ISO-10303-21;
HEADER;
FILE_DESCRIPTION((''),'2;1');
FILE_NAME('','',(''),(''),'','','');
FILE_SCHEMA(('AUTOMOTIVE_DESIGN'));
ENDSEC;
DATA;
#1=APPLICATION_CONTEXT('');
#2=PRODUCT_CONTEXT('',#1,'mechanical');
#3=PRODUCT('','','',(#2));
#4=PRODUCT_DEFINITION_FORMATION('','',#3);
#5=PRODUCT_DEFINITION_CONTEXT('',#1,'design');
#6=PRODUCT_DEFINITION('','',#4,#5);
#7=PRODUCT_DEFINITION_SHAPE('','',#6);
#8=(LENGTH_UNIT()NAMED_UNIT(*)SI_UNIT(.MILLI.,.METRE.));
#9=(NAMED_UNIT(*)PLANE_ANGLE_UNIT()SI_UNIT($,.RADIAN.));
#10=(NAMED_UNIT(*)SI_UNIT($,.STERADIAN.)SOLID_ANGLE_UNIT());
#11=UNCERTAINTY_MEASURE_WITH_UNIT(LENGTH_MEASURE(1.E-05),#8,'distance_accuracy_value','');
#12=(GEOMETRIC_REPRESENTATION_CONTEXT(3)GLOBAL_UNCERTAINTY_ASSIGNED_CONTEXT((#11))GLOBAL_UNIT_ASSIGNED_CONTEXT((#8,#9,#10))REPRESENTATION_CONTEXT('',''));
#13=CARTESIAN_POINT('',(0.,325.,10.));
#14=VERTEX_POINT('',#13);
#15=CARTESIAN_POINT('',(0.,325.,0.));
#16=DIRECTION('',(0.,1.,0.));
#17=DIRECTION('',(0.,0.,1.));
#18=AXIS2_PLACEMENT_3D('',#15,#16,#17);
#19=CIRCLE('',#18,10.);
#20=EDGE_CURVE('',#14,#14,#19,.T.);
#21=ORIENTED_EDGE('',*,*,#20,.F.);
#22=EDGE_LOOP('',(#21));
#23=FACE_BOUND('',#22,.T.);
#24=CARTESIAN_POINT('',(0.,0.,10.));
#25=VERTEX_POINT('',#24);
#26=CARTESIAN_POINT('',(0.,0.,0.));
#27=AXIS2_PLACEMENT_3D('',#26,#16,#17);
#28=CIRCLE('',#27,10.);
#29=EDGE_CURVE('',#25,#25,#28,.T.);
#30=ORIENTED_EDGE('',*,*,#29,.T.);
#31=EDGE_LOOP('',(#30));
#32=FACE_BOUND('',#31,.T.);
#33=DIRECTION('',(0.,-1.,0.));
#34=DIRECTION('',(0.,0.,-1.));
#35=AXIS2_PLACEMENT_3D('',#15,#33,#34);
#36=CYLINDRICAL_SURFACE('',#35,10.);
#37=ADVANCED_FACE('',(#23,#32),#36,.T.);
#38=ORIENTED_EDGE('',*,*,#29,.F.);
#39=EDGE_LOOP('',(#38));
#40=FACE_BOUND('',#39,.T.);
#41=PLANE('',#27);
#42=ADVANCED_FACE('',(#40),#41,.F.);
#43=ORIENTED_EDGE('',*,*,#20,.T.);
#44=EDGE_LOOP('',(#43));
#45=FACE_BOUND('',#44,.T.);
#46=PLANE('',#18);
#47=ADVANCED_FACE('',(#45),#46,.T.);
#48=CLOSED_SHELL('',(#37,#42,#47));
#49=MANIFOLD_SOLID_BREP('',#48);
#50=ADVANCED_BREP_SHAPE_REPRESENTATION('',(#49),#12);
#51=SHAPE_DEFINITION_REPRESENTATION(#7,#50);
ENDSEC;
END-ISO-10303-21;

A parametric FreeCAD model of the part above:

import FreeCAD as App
import Part
import Sketcher
from FreeCAD import Vector
Q = App.Units.Quantity

doc = App.newDocument("Part")
params = doc.addObject("Spreadsheet::Sheet", "Params")
for row, (alias, value) in enumerate([
    ("sketch1_diameter", "20 mm"),
    ("pad1_length", "325 mm"),
], start=1):
    params.set(f"A{row}", alias)
    params.set(f"B{row}", "=" + value)
    params.setAlias(f"B{row}", alias)

body = doc.addObject("PartDesign::Body", "Body")

sketch1 = body.newObject("Sketcher::SketchObject", "Sketch")
sketch1.AttachmentSupport = (doc.getObject("XZ_Plane"), [""])
sketch1.MapMode = "FlatFace"
sketch1.addGeometry(Part.Circle(Vector(0, 0, 0), Vector(0, 0, 1), 10), False)
sketch1.addConstraint(Sketcher.Constraint("Coincident", 0, 3, -1, 1))
sketch1.addConstraint(Sketcher.Constraint("Diameter", 0, Q("20 mm")))
sketch1.setExpression("Constraints[1]", "Params.sketch1_diameter")
pad1 = body.newObject("PartDesign::Pad", "Pad")
pad1.Profile = sketch1
pad1.setExpression("Length", "Params.pad1_length")
pad1.Reversed = True

doc.recompute()
